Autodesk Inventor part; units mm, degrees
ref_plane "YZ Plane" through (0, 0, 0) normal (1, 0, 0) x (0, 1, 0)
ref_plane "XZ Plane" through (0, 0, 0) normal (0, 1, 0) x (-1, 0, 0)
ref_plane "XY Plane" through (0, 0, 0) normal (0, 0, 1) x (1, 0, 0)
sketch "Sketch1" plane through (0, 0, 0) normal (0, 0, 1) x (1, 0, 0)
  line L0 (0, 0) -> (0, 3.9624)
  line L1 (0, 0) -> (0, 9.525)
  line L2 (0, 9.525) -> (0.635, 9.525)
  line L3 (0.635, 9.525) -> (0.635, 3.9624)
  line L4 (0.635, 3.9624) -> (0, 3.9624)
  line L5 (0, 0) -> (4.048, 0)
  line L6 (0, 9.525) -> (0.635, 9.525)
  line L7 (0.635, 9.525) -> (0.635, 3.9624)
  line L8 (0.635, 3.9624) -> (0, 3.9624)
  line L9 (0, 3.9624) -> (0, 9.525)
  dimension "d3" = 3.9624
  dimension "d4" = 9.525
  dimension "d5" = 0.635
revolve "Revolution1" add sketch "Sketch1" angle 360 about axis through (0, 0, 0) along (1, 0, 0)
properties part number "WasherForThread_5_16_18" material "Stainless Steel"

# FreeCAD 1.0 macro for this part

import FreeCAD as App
import Part
import Sketcher

V = App.Vector
Q = App.Units.Quantity

doc = App.newDocument("Part")
body = doc.addObject("PartDesign::Body", "Body")

# Sketch on XY plane
sketch1 = doc.addObject("Sketcher::SketchObject", "Sketch")
body.addObject(sketch1)
sketch1.AttachmentSupport = (doc.XY_Plane, [""])
sketch1.MapMode = "FlatFace"
sketch1.addGeometry(Part.LineSegment(V(0, 9.525, 0), V(0, 3.9624, 0)), False)
sketch1.addGeometry(Part.LineSegment(V(0, 3.9624, 0), V(0.635, 3.9624, 0)), False)
sketch1.addGeometry(Part.LineSegment(V(0.635, 3.9624, 0), V(0.635, 9.525, 0)), False)
sketch1.addGeometry(Part.LineSegment(V(0.635, 9.525, 0), V(0, 9.525, 0)), False)
sketch1.addConstraint(Sketcher.Constraint("Coincident", 0, 2, 1, 1))
sketch1.addConstraint(Sketcher.Constraint("Coincident", 1, 2, 2, 1))
sketch1.addConstraint(Sketcher.Constraint("Coincident", 2, 2, 3, 1))
sketch1.addConstraint(Sketcher.Constraint("Coincident", 3, 2, 0, 1))
sketch1.addConstraint(Sketcher.Constraint("Vertical", 0))
sketch1.addConstraint(Sketcher.Constraint("Horizontal", 1))
sketch1.addConstraint(Sketcher.Constraint("Vertical", 2))
sketch1.addConstraint(Sketcher.Constraint("Horizontal", 3))
sketch1.addConstraint(Sketcher.Constraint("PointOnObject", 0, 2, -2))
sketch1.addConstraint(Sketcher.Constraint("DistanceX", 1, 1, 1, 2, Q("0.025 in")))
sketch1.addConstraint(Sketcher.Constraint("DistanceY", -1, 1, 0, 2, Q("0.156 in")))
sketch1.addConstraint(Sketcher.Constraint("DistanceY", -1, 1, 2, 2, Q("0.375 in")))
revolution = doc.addObject("PartDesign::Revolution", "Revolution")
body.addObject(revolution)
revolution.Profile = sketch1
revolution.ReferenceAxis = (sketch1, ["H_Axis"])
revolution.Angle = 360

doc.recompute()
